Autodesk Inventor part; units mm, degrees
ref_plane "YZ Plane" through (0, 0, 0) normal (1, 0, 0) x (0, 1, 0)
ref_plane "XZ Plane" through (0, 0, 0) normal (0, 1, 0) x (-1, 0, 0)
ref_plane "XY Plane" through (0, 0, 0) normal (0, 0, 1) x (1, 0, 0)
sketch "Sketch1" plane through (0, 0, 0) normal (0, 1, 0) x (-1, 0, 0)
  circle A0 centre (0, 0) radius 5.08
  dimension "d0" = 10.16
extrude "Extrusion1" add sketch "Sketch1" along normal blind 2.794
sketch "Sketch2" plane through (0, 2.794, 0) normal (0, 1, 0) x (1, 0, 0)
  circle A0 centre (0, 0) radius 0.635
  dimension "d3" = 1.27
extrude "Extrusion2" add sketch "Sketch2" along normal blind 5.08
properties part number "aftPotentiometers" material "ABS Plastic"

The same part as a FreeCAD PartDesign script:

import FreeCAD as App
import Part
import Sketcher
from FreeCAD import Vector
Q = App.Units.Quantity

doc = App.newDocument("Part")
body = doc.addObject("PartDesign::Body", "Body")

# Sketch on XZ plane
sketch1 = body.newObject("Sketcher::SketchObject", "Sketch")
sketch1.AttachmentSupport = (doc.getObject("XZ_Plane"), [""])
sketch1.MapMode = "FlatFace"
sketch1.addGeometry(Part.Circle(Vector(0, 0, 0), Vector(0, 0, 1), 5), False)
sketch1.addConstraint(Sketcher.Constraint("Coincident", 0, 3, -1, 1))
sketch1.addConstraint(Sketcher.Constraint("Diameter", 0, Q("0.4 in")))
pad1 = body.newObject("PartDesign::Pad", "Pad")
pad1.Profile = sketch1
pad1.Length = Q("0.11 in")
pad1.Reversed = True

# Sketch on XZ plane
sketch2 = body.newObject("Sketcher::SketchObject", "Sketch001")
sketch2.AttachmentSupport = (doc.getObject("XZ_Plane"), [""])
sketch2.MapMode = "FlatFace"
sketch2.AttachmentOffset = App.Placement(Vector(0, 0, -0.11 * 25.4), App.Rotation())
sketch2.addGeometry(Part.Circle(Vector(0, 0, 0), Vector(0, 0, 1), 0.6), False)
sketch2.addConstraint(Sketcher.Constraint("Coincident", 0, 3, -1, 1))
sketch2.addConstraint(Sketcher.Constraint("Diameter", 0, Q("0.05 in")))
pad2 = body.newObject("PartDesign::Pad", "Pad001")
pad2.Profile = sketch2
pad2.Length = Q("0.2 in")
pad2.Reversed = True

doc.recompute()
